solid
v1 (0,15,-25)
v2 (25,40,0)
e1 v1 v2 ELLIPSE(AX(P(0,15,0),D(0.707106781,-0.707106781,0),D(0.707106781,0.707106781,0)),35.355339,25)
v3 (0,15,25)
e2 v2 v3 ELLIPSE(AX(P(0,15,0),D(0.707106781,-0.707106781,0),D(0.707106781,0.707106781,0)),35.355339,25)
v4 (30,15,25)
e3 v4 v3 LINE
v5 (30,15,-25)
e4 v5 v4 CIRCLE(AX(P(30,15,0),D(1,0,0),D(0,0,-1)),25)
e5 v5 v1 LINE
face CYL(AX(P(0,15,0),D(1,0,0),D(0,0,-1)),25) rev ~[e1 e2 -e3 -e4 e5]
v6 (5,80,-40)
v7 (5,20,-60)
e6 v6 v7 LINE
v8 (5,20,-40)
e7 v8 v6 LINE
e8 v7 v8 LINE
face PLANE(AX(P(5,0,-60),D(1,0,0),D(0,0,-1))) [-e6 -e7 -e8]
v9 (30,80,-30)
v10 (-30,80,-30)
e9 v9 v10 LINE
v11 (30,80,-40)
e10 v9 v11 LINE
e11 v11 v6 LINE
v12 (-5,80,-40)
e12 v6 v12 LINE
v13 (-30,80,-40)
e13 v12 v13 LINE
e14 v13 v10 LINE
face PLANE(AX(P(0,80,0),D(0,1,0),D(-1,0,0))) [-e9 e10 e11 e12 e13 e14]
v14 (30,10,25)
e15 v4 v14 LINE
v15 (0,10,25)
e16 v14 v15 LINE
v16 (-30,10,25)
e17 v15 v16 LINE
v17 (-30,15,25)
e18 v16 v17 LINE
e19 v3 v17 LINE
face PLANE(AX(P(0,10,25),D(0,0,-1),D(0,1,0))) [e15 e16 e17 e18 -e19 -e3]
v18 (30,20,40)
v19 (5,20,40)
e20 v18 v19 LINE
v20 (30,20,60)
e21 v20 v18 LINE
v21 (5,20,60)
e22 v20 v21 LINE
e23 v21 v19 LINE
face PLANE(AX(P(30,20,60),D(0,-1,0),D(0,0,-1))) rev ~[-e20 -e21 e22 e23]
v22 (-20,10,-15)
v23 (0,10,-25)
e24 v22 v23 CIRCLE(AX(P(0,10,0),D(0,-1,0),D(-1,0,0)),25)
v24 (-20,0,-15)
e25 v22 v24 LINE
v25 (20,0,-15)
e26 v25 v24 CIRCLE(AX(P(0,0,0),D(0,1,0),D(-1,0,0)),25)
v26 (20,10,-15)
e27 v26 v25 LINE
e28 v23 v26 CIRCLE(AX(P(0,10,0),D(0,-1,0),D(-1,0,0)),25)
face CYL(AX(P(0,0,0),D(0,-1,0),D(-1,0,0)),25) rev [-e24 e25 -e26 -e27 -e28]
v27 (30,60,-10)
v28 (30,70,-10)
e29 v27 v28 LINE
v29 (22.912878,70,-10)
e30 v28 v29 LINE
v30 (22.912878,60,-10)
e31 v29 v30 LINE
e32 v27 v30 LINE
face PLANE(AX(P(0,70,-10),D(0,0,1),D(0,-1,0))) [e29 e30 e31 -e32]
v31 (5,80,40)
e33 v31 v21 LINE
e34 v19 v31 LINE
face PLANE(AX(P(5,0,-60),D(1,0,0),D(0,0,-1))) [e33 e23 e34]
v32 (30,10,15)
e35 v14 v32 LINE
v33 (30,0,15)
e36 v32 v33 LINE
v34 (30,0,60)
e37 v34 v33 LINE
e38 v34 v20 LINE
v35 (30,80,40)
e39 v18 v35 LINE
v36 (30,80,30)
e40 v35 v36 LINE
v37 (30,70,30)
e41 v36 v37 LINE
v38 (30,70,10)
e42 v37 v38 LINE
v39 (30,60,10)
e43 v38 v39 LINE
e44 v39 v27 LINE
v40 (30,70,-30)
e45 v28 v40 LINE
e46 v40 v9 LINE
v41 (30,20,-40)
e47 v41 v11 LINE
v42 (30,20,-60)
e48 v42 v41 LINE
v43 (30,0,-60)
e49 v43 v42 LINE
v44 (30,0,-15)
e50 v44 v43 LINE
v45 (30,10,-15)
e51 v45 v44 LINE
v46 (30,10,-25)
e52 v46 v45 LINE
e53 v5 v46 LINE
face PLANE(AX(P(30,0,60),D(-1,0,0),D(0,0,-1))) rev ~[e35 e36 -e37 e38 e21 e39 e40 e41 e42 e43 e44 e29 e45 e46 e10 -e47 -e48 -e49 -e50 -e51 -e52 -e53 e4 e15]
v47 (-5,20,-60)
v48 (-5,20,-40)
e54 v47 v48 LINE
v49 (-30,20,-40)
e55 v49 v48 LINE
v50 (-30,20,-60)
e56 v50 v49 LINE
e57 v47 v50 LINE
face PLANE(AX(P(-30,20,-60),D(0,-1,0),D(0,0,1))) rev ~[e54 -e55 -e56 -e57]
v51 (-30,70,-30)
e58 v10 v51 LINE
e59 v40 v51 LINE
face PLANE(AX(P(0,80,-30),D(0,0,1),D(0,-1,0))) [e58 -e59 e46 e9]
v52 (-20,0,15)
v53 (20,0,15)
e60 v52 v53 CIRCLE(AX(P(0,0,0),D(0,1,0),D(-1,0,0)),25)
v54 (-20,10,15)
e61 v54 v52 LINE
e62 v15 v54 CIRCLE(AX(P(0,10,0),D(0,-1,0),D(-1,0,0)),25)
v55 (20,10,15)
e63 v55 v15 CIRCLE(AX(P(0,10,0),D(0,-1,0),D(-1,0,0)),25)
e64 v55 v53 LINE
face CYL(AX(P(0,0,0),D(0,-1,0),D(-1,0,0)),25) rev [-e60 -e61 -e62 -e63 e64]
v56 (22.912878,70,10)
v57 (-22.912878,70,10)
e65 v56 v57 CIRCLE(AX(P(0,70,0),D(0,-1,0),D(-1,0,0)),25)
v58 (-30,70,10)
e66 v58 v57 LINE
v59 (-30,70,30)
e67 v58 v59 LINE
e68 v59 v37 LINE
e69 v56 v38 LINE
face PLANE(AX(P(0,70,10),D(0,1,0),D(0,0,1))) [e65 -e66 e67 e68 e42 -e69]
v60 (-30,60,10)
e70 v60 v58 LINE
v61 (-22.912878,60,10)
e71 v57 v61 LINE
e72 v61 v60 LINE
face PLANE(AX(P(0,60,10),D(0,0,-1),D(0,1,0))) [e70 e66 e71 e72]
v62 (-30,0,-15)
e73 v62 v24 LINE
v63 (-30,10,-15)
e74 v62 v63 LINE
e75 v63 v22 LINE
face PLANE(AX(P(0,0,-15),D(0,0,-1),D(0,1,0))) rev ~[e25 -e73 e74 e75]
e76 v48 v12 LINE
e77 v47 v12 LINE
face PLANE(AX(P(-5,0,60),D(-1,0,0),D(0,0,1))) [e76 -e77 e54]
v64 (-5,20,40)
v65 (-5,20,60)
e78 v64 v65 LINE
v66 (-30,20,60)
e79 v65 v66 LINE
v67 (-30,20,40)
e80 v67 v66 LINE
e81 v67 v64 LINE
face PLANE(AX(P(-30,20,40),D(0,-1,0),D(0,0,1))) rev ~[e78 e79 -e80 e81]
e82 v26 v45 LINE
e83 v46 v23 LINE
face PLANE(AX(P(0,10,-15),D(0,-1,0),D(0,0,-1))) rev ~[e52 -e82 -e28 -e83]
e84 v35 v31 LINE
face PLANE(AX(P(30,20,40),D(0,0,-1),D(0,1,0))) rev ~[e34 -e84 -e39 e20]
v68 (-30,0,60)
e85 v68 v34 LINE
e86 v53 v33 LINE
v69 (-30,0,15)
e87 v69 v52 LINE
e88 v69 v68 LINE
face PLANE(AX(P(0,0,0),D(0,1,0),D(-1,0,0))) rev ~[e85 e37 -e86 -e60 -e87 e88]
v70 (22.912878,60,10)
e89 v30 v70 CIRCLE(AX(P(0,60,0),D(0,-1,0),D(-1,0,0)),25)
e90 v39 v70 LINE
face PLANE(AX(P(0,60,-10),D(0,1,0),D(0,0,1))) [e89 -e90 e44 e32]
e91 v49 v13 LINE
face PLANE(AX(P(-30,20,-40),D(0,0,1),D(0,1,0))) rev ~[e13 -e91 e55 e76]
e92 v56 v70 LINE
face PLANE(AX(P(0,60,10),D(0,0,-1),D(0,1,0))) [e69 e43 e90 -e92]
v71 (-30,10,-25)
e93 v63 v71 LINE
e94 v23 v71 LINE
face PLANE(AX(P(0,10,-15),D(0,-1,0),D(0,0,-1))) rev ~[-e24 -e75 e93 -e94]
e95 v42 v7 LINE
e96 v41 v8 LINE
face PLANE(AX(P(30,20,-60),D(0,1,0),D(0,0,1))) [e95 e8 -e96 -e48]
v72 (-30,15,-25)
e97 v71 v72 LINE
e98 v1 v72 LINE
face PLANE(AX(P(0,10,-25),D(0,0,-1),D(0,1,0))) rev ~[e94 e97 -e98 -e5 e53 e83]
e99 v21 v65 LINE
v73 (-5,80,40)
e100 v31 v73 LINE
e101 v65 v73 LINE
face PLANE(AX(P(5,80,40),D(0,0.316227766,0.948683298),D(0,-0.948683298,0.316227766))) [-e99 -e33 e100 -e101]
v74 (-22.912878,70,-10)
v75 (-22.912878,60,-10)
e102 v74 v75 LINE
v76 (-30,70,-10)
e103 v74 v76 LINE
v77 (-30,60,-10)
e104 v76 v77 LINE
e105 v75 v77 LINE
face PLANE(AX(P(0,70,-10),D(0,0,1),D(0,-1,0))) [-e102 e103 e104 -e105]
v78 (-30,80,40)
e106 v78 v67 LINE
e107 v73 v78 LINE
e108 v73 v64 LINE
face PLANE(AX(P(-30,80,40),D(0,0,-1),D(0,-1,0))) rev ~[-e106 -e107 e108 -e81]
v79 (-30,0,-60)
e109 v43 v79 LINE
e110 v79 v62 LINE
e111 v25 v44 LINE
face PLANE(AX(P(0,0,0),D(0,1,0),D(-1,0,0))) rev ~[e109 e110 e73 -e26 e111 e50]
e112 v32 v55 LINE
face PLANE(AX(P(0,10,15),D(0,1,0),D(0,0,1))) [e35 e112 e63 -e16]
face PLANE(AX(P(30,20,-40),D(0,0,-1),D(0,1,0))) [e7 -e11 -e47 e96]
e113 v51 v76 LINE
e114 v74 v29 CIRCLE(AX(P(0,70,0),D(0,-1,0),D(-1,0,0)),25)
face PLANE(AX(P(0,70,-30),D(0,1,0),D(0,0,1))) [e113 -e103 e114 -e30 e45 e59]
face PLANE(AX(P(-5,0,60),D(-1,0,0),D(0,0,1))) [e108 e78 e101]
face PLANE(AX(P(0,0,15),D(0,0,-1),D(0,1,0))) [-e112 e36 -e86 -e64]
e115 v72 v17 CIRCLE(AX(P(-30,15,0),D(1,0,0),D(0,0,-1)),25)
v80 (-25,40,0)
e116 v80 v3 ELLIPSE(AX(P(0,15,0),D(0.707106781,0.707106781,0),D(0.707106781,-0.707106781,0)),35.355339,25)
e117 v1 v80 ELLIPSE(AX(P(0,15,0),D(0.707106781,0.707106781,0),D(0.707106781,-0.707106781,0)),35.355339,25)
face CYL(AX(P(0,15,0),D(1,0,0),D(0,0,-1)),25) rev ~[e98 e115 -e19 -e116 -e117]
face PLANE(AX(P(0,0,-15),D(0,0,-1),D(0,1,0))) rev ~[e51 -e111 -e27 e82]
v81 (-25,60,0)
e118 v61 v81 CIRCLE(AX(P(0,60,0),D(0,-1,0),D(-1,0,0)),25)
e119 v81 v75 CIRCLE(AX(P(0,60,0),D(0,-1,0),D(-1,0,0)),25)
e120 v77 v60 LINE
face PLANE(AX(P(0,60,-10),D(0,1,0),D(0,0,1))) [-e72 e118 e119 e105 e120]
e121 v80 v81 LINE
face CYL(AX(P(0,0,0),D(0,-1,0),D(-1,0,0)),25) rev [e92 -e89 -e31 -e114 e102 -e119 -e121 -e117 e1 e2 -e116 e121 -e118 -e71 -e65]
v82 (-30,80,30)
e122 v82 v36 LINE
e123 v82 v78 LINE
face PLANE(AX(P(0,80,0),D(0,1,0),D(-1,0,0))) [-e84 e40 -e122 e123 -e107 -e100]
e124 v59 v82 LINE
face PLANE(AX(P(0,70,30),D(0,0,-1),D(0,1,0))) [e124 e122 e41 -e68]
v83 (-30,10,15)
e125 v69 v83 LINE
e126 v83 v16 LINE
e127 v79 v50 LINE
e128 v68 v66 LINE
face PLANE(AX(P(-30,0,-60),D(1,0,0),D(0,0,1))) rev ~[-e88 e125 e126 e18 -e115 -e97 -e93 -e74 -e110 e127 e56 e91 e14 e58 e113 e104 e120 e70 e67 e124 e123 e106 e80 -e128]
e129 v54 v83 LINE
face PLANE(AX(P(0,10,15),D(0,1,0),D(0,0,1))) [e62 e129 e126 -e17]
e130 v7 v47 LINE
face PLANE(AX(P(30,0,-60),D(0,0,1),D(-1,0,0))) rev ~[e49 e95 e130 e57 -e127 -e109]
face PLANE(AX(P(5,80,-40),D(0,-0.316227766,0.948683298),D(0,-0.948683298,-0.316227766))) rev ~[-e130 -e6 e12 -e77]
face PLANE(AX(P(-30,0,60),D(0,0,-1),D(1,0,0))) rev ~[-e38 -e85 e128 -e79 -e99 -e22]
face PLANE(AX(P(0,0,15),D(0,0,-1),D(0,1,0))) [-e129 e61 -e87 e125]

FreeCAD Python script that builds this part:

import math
import FreeCAD as App
import Part
import Sketcher
Q = App.Units.Quantity


def add_polygon(sketch, points):
    """Adds a closed chain of lines whose ends are joined by coincident constraints."""
    first, n = sketch.GeometryCount, len(points)
    for a, b in zip(points, points[1:] + points[:1]):
        sketch.addGeometry(Part.LineSegment(App.Vector(*a, 0), App.Vector(*b, 0)), False)
    for i in range(n):
        sketch.addConstraint(Sketcher.Constraint("Coincident", first + i, 2, first + (i + 1) % n, 1))

doc = App.newDocument("Part")
body = doc.addObject("PartDesign::Body", "Body")

# Sketch on XZ plane
sketch1 = doc.addObject("Sketcher::SketchObject", "Sketch")
body.addObject(sketch1)
sketch1.AttachmentSupport = (doc.XZ_Plane, [""])
sketch1.MapMode = "FlatFace"
add_polygon(sketch1, [(-30, -60), (-30, 60), (30, 60), (30, -60)])  # lines 0-3
sketch1.addConstraint(Sketcher.Constraint("Vertical", 0))
sketch1.addConstraint(Sketcher.Constraint("Horizontal", 1))
sketch1.addConstraint(Sketcher.Constraint("Vertical", 2))
sketch1.addConstraint(Sketcher.Constraint("Horizontal", 3))
sketch1.addConstraint(Sketcher.Constraint("Symmetric", 0, 2, 2, 2, -1, 1))
sketch1.addConstraint(Sketcher.Constraint("DistanceX", 1, 1, 1, 2, Q("60 mm")))
sketch1.addConstraint(Sketcher.Constraint("DistanceY", 0, 1, 0, 2, Q("120 mm")))
pad1 = doc.addObject("PartDesign::Pad", "Pad")
body.addObject(pad1)
pad1.Profile = sketch1
pad1.Length = 80
pad1.Reversed = True

# Sketch on YZ plane
sketch2 = doc.addObject("Sketcher::SketchObject", "Sketch001")
body.addObject(sketch2)
sketch2.AttachmentSupport = (doc.YZ_Plane, [""])
sketch2.MapMode = "FlatFace"
add_polygon(sketch2, [(80, -30), (80, 30), (70, 30), (70, 10), (60, 10), (60, -10), (70, -10), (70, -30)])  # lines 0-7
sketch2.addConstraint(Sketcher.Constraint("Vertical", 0))
sketch2.addConstraint(Sketcher.Constraint("Horizontal", 1))
sketch2.addConstraint(Sketcher.Constraint("Vertical", 2))
sketch2.addConstraint(Sketcher.Constraint("Horizontal", 3))
sketch2.addConstraint(Sketcher.Constraint("Vertical", 4))
sketch2.addConstraint(Sketcher.Constraint("Horizontal", 5))
sketch2.addConstraint(Sketcher.Constraint("Vertical", 6))
sketch2.addConstraint(Sketcher.Constraint("Horizontal", 7))
sketch2.addConstraint(Sketcher.Constraint("Symmetric", 2, 2, 5, 2, -1))
sketch2.addConstraint(Sketcher.Constraint("Equal", 1, 3))
sketch2.addConstraint(Sketcher.Constraint("Equal", 2, 4))
sketch2.addConstraint(Sketcher.Constraint("Equal", 4, 6))
sketch2.addConstraint(Sketcher.Constraint("DistanceX", 1, 2, 1, 1, Q("10 mm")))
sketch2.addConstraint(Sketcher.Constraint("DistanceY", 0, 1, 0, 2, Q("60 mm")))
sketch2.addConstraint(Sketcher.Constraint("DistanceX", -1, 1, 0, 2, Q("80 mm")))
pocket1 = doc.addObject("PartDesign::Pocket", "Pocket")
body.addObject(pocket1)
pocket1.Profile = sketch2
pocket1.Length = 80
pocket1.Midplane = True

# Sketch on YZ plane
sketch3 = doc.addObject("Sketcher::SketchObject", "Sketch002")
body.addObject(sketch3)
sketch3.AttachmentSupport = (doc.YZ_Plane, [""])
sketch3.MapMode = "FlatFace"
sketch3.addGeometry(Part.LineSegment(App.Vector(10, 15, 0), App.Vector(0, 15, 0)), False)
sketch3.addGeometry(Part.LineSegment(App.Vector(0, 15, 0), App.Vector(0, -15, 0)), False)
sketch3.addGeometry(Part.LineSegment(App.Vector(0, -15, 0), App.Vector(10, -15, 0)), False)
sketch3.addGeometry(Part.LineSegment(App.Vector(10, -15, 0), App.Vector(10, -25, 0)), False)
sketch3.addGeometry(Part.LineSegment(App.Vector(10, -25, 0), App.Vector(15, -25, 0)), False)
sketch3.addGeometry(Part.ArcOfCircle(Part.Circle(App.Vector(15, 0, 0), App.Vector(0, 0, 1), 25), math.radians(-90), math.radians(90)), False)
sketch3.addGeometry(Part.LineSegment(App.Vector(15, 25, 0), App.Vector(10, 25, 0)), False)
sketch3.addGeometry(Part.LineSegment(App.Vector(10, 25, 0), App.Vector(10, 15, 0)), False)
sketch3.addConstraint(Sketcher.Constraint("Coincident", 0, 2, 1, 1))
sketch3.addConstraint(Sketcher.Constraint("Coincident", 1, 2, 2, 1))
sketch3.addConstraint(Sketcher.Constraint("Coincident", 2, 2, 3, 1))
sketch3.addConstraint(Sketcher.Constraint("Coincident", 3, 2, 4, 1))
sketch3.addConstraint(Sketcher.Constraint("Tangent", 4, 2, 5, 1))
sketch3.addConstraint(Sketcher.Constraint("Tangent", 5, 2, 6, 1))
sketch3.addConstraint(Sketcher.Constraint("Coincident", 6, 2, 7, 1))
sketch3.addConstraint(Sketcher.Constraint("Coincident", 7, 2, 0, 1))
sketch3.addConstraint(Sketcher.Constraint("Horizontal", 0))
sketch3.addConstraint(Sketcher.Constraint("Vertical", 1))
sketch3.addConstraint(Sketcher.Constraint("Horizontal", 2))
sketch3.addConstraint(Sketcher.Constraint("Vertical", 3))
sketch3.addConstraint(Sketcher.Constraint("Horizontal", 4))
sketch3.addConstraint(Sketcher.Constraint("Horizontal", 6))
sketch3.addConstraint(Sketcher.Constraint("Vertical", 7))
sketch3.addConstraint(Sketcher.Constraint("Symmetric", 0, 2, 1, 2, -1, 1))
sketch3.addConstraint(Sketcher.Constraint("Symmetric", 3, 2, 6, 2, -1))
sketch3.addConstraint(Sketcher.Constraint("Equal", 2, 3))
sketch3.addConstraint(Sketcher.Constraint("DistanceX", 0, 2, 0, 1, Q("10 mm")))
sketch3.addConstraint(Sketcher.Constraint("DistanceY", 1, 2, 1, 1, Q("30 mm")))
sketch3.addConstraint(Sketcher.Constraint("DistanceX", 4, 1, 4, 2, Q("5 mm")))
pocket2 = doc.addObject("PartDesign::Pocket", "Pocket001")
body.addObject(pocket2)
pocket2.Profile = sketch3
pocket2.Length = 80
pocket2.Midplane = True

# Sketch on XZ plane
sketch4 = doc.addObject("Sketcher::SketchObject", "Sketch003")
body.addObject(sketch4)
sketch4.AttachmentSupport = (doc.XZ_Plane, [""])
sketch4.MapMode = "FlatFace"
sketch4.addGeometry(Part.Circle(App.Vector(0, 0, 0), App.Vector(0, 0, 1), 25), False)
sketch4.addConstraint(Sketcher.Constraint("Coincident", 0, 3, -1, 1))
sketch4.addConstraint(Sketcher.Constraint("Diameter", 0, Q("50 mm")))
pocket3 = doc.addObject("PartDesign::Pocket", "Pocket002")
body.addObject(pocket3)
pocket3.Profile = sketch4
pocket3.Length = 80

# Sketch on YZ plane
sketch5 = doc.addObject("Sketcher::SketchObject", "Sketch004")
body.addObject(sketch5)
sketch5.AttachmentSupport = (doc.YZ_Plane, [""])
sketch5.MapMode = "FlatFace"
sketch5.AttachmentOffset = App.Placement(App.Vector(0, 0, 30), App.Rotation())
add_polygon(sketch5, [(80, 60), (20, 60), (20, 40), (80, 40)])  # lines 0-3
add_polygon(sketch5, [(20, -40), (20, -60), (80, -60), (80, -40)])  # lines 4-7
sketch5.addConstraint(Sketcher.Constraint("Horizontal", 0))
sketch5.addConstraint(Sketcher.Constraint("Vertical", 1))
sketch5.addConstraint(Sketcher.Constraint("Horizontal", 2))
sketch5.addConstraint(Sketcher.Constraint("Vertical", 3))
sketch5.addConstraint(Sketcher.Constraint("Vertical", 4))
sketch5.addConstraint(Sketcher.Constraint("Horizontal", 5))
sketch5.addConstraint(Sketcher.Constraint("Vertical", 6))
sketch5.addConstraint(Sketcher.Constraint("Horizontal", 7))
sketch5.addConstraint(Sketcher.Constraint("Symmetric", 0, 2, 4, 2, -1))
sketch5.addConstraint(Sketcher.Constraint("Symmetric", 2, 2, 6, 2, -1))
sketch5.addConstraint(Sketcher.Constraint("DistanceY", 1, 2, 1, 1, Q("20 mm")))
sketch5.addConstraint(Sketcher.Constraint("DistanceX", -1, 1, 0, 2, Q("20 mm")))
sketch5.addConstraint(Sketcher.Constraint("DistanceX", 0, 2, 0, 1, Q("60 mm")))
sketch5.addConstraint(Sketcher.Constraint("DistanceY", -1, 1, 0, 2, Q("60 mm")))
pocket4 = doc.addObject("PartDesign::Pocket", "Pocket003")
body.addObject(pocket4)
pocket4.Profile = sketch5
pocket4.Length = 25

# Sketch on YZ plane
sketch6 = doc.addObject("Sketcher::SketchObject", "Sketch005")
body.addObject(sketch6)
sketch6.AttachmentSupport = (doc.YZ_Plane, [""])
sketch6.MapMode = "FlatFace"
sketch6.AttachmentOffset = App.Placement(App.Vector(0, 0, -30), App.Rotation())
add_polygon(sketch6, [(80, -60), (20, -60), (20, -40), (80, -40)])  # lines 0-3
add_polygon(sketch6, [(80, 40), (20, 40), (20, 60), (80, 60)])  # lines 4-7
sketch6.addConstraint(Sketcher.Constraint("Horizontal", 0))
sketch6.addConstraint(Sketcher.Constraint("Vertical", 1))
sketch6.addConstraint(Sketcher.Constraint("Horizontal", 2))
sketch6.addConstraint(Sketcher.Constraint("Vertical", 3))
sketch6.addConstraint(Sketcher.Constraint("Horizontal", 4))
sketch6.addConstraint(Sketcher.Constraint("Vertical", 5))
sketch6.addConstraint(Sketcher.Constraint("Horizontal", 6))
sketch6.addConstraint(Sketcher.Constraint("Vertical", 7))
sketch6.addConstraint(Sketcher.Constraint("Symmetric", 1, 2, 4, 2, -1))
sketch6.addConstraint(Sketcher.Constraint("Symmetric", 3, 2, 6, 2, -1))
sketch6.addConstraint(Sketcher.Constraint("DistanceX", 0, 2, 0, 1, Q("60 mm")))
sketch6.addConstraint(Sketcher.Constraint("DistanceY", 1, 1, 1, 2, Q("20 mm")))
sketch6.addConstraint(Sketcher.Constraint("DistanceX", -1, 1, 0, 2, Q("20 mm")))
sketch6.addConstraint(Sketcher.Constraint("DistanceY", 0, 2, -1, 1, Q("60 mm")))
pocket5 = doc.addObject("PartDesign::Pocket", "Pocket004")
body.addObject(pocket5)
pocket5.Profile = sketch6
pocket5.Length = 25
pocket5.Reversed = True

# Sketch on YZ plane
sketch7 = doc.addObject("Sketcher::SketchObject", "Sketch006")
body.addObject(sketch7)
sketch7.AttachmentSupport = (doc.YZ_Plane, [""])
sketch7.MapMode = "FlatFace"
sketch7.AttachmentOffset = App.Placement(App.Vector(0, 0, 5), App.Rotation())
add_polygon(sketch7, [(80, -60), (80, -40), (20, -60)])  # lines 0-2
sketch7.addConstraint(Sketcher.Constraint("Vertical", 0))
sketch7.addConstraint(Sketcher.Constraint("Horizontal", 2))
sketch7.addConstraint(Sketcher.Constraint("DistanceX", 2, 1, 2, 2, Q("60 mm")))
sketch7.addConstraint(Sketcher.Constraint("DistanceY", 0, 1, 0, 2, Q("20 mm")))
sketch7.addConstraint(Sketcher.Constraint("DistanceX", -1, 1, 0, 2, Q("80 mm")))
sketch7.addConstraint(Sketcher.Constraint("DistanceY", 0, 2, -1, 1, Q("40 mm")))
pocket6 = doc.addObject("PartDesign::Pocket", "Pocket005")
body.addObject(pocket6)
pocket6.Profile = sketch7
pocket6.Length = 25

# Sketch on YZ plane
sketch8 = doc.addObject("Sketcher::SketchObject", "Sketch007")
body.addObject(sketch8)
sketch8.AttachmentSupport = (doc.YZ_Plane, [""])
sketch8.MapMode = "FlatFace"
sketch8.AttachmentOffset = App.Placement(App.Vector(0, 0, 5), App.Rotation())
add_polygon(sketch8, [(80, 60), (20, 60), (80, 40)])  # lines 0-2
sketch8.addConstraint(Sketcher.Constraint("Horizontal", 0))
sketch8.addConstraint(Sketcher.Constraint("Vertical", 2))
sketch8.addConstraint(Sketcher.Constraint("DistanceX", 0, 2, 0, 1, Q("60 mm")))
sketch8.addConstraint(Sketcher.Constraint("DistanceY", 2, 1, 2, 2, Q("20 mm")))
sketch8.addConstraint(Sketcher.Constraint("DistanceX", -1, 1, 0, 2, Q("20 mm")))
sketch8.addConstraint(Sketcher.Constraint("DistanceY", -1, 1, 0, 2, Q("60 mm")))
pocket7 = doc.addObject("PartDesign::Pocket", "Pocket006")
body.addObject(pocket7)
pocket7.Profile = sketch8
pocket7.Length = 25

doc.recompute()
